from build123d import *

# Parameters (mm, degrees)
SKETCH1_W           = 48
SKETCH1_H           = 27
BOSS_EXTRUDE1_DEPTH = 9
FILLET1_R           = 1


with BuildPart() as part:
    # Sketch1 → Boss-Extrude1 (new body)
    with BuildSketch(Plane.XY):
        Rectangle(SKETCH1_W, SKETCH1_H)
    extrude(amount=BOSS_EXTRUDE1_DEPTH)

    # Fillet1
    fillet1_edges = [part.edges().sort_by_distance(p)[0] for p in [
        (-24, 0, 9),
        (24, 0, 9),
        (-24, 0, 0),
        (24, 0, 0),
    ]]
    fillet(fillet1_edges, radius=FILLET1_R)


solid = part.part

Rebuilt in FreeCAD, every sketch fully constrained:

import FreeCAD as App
import Part
import Sketcher


def edges_at(feature, points):
    """Names of the edges that pass closest to the given points."""
    edges = feature.Shape.Edges
    near = lambda p: min(range(len(edges)), key=lambda i: edges[i].distToShape(Part.Vertex(*p))[0])
    return sorted({f"Edge{near(p) + 1}" for p in points})


def add_polygon(sketch, points):
    """Adds a closed chain of lines whose ends are joined by coincident constraints."""
    first, n = sketch.GeometryCount, len(points)
    for a, b in zip(points, points[1:] + points[:1]):
        sketch.addGeometry(Part.LineSegment(App.Vector(*a, 0), App.Vector(*b, 0)), False)
    for i in range(n):
        sketch.addConstraint(Sketcher.Constraint("Coincident", first + i, 2, first + (i + 1) % n, 1))

doc = App.newDocument("Part")
body = doc.addObject("PartDesign::Body", "Body")

sketch1 = body.newObject("Sketcher::SketchObject", "Sketch")
sketch1.AttachmentSupport = (doc.getObject("XY_Plane"), [""])
sketch1.MapMode = "FlatFace"
add_polygon(sketch1, [(-24, 13.5), (-24, -13.5), (24, -13.5), (24, 13.5)])
sketch1.addConstraint([
    Sketcher.Constraint("Vertical", 0),
    Sketcher.Constraint("Horizontal", 1),
    Sketcher.Constraint("Vertical", 2),
    Sketcher.Constraint("Horizontal", 3),
    Sketcher.Constraint("Symmetric", 0, 2, 2, 2, -1, 1),
    Sketcher.Constraint("DistanceX", 1, 1, 1, 2, 48.0),
    Sketcher.Constraint("DistanceY", 0, 2, 0, 1, 27.0),
])
pad1 = body.newObject("PartDesign::Pad", "Pad")
pad1.Profile = sketch1
pad1.Length = 9
doc.recompute()

fillet = body.newObject("PartDesign::Fillet", "Fillet")
fillet.Base = (pad1, edges_at(pad1, [
    (-24, 0, 9),
    (24, 0, 9),
    (-24, 0, 0),
    (24, 0, 0),
]))
fillet.Radius = 1

doc.recompute()
